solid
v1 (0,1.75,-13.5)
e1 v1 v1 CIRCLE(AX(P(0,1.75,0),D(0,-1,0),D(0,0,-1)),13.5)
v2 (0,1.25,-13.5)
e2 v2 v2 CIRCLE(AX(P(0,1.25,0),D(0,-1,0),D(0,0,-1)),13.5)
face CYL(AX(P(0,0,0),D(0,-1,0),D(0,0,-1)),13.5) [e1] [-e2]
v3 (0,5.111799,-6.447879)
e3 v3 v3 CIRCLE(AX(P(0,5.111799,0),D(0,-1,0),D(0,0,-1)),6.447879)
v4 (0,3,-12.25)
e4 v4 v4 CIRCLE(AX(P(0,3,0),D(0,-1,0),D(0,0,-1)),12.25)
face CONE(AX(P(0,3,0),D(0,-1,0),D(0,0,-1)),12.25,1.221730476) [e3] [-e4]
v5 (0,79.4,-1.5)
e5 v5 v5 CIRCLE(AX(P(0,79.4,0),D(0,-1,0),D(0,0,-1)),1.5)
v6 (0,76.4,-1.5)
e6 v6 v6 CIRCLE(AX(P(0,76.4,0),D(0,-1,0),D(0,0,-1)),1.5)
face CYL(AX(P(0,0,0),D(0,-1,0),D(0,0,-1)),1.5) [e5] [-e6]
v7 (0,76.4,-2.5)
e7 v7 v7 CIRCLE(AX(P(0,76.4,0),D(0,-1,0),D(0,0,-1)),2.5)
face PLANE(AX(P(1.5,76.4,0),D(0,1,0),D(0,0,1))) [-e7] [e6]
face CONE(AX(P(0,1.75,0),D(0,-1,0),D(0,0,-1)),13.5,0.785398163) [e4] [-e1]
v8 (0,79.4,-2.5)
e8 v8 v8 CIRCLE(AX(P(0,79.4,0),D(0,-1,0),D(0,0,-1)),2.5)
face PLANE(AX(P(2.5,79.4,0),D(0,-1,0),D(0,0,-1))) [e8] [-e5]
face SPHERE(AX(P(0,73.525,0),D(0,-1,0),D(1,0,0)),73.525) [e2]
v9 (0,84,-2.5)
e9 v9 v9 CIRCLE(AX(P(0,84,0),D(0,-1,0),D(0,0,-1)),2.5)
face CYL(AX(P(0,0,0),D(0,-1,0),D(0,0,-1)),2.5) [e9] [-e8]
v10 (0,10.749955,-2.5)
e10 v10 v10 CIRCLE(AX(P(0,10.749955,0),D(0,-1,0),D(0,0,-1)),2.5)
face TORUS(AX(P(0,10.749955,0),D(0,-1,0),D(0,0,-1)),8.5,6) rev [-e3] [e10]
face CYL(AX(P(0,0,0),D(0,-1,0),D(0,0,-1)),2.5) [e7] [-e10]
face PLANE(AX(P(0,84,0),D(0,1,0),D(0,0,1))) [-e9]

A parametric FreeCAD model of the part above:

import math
import FreeCAD as App
import Part
import Sketcher

V = App.Vector
Q = App.Units.Quantity

doc = App.newDocument("Part")
body = doc.addObject("PartDesign::Body", "Body")

# Sketch on XY plane
sketch1 = body.newObject("Sketcher::SketchObject", "Sketch")
sketch1.AttachmentSupport = (doc.getObject("XY_Plane"), [""])
sketch1.MapMode = "FlatFace"
sketch1.addGeometry(Part.LineSegment(V(0, 84, 0), V(0, 0, 0)), False)
sketch1.addGeometry(Part.ArcOfCircle(Part.Circle(V(0, 73.525, 0), V(0, 0, 1), 73.525), math.radians(-90), math.radians(-79.419838)), False)
sketch1.addGeometry(Part.LineSegment(V(13.5, 1.25, 0), V(13.5, 1.75, 0)), False)
sketch1.addGeometry(Part.LineSegment(V(13.5, 1.75, 0), V(12.25, 3, 0)), False)
sketch1.addGeometry(Part.LineSegment(V(12.25, 3, 0), V(6.447879, 5.111799, 0)), False)
sketch1.addGeometry(Part.ArcOfCircle(Part.Circle(V(8.5, 10.749955, 0), V(0, 0, 1), 6), math.radians(180), math.radians(250)), False)
sketch1.addGeometry(Part.LineSegment(V(2.5, 10.749955, 0), V(2.5, 76.4, 0)), False)
sketch1.addGeometry(Part.LineSegment(V(2.5, 76.4, 0), V(1.5, 76.4, 0)), False)
sketch1.addGeometry(Part.LineSegment(V(1.5, 76.4, 0), V(1.5, 79.4, 0)), False)
sketch1.addGeometry(Part.LineSegment(V(1.5, 79.4, 0), V(2.5, 79.4, 0)), False)
sketch1.addGeometry(Part.LineSegment(V(2.5, 79.4, 0), V(2.5, 84, 0)), False)
sketch1.addGeometry(Part.LineSegment(V(2.5, 84, 0), V(0, 84, 0)), False)
sketch1.addConstraint(Sketcher.Constraint("Coincident", 0, 2, 1, 1))
sketch1.addConstraint(Sketcher.Constraint("Coincident", 1, 2, 2, 1))
sketch1.addConstraint(Sketcher.Constraint("Coincident", 2, 2, 3, 1))
sketch1.addConstraint(Sketcher.Constraint("Coincident", 3, 2, 4, 1))
sketch1.addConstraint(Sketcher.Constraint("Tangent", 4, 2, 5, 2))
sketch1.addConstraint(Sketcher.Constraint("Tangent", 5, 1, 6, 1))
sketch1.addConstraint(Sketcher.Constraint("Coincident", 6, 2, 7, 1))
sketch1.addConstraint(Sketcher.Constraint("Coincident", 7, 2, 8, 1))
sketch1.addConstraint(Sketcher.Constraint("Coincident", 8, 2, 9, 1))
sketch1.addConstraint(Sketcher.Constraint("Coincident", 9, 2, 10, 1))
sketch1.addConstraint(Sketcher.Constraint("Coincident", 10, 2, 11, 1))
sketch1.addConstraint(Sketcher.Constraint("Coincident", 11, 2, 0, 1))
sketch1.addConstraint(Sketcher.Constraint("Vertical", 0))
sketch1.addConstraint(Sketcher.Constraint("Vertical", 2))
sketch1.addConstraint(Sketcher.Constraint("Vertical", 6))
sketch1.addConstraint(Sketcher.Constraint("Horizontal", 7))
sketch1.addConstraint(Sketcher.Constraint("Vertical", 8))
sketch1.addConstraint(Sketcher.Constraint("Horizontal", 9))
sketch1.addConstraint(Sketcher.Constraint("Vertical", 10))
sketch1.addConstraint(Sketcher.Constraint("Horizontal", 11))
sketch1.addConstraint(Sketcher.Constraint("Coincident", 0, 2, -1, 1))
sketch1.addConstraint(Sketcher.Constraint("PointOnObject", 1, 3, -2))
sketch1.addConstraint(Sketcher.Constraint("Vertical", 6, 2, 9, 2))
sketch1.addConstraint(Sketcher.Constraint("Radius", 5, 6.0))
sketch1.addConstraint(Sketcher.Constraint("DistanceX", 7, 2, 7, 1, 1.0))
sketch1.addConstraint(Sketcher.Constraint("DistanceY", 0, 2, 0, 1, 84.0))
sketch1.addConstraint(Sketcher.Constraint("DistanceY", 8, 1, 8, 2, 3.0))
sketch1.addConstraint(Sketcher.Constraint("Angle", 3, Q("135 deg")))
sketch1.addConstraint(Sketcher.Constraint("Angle", 4, Q("160 deg")))
sketch1.addConstraint(Sketcher.Constraint("DistanceX", 11, 2, 11, 1, 2.5))
sketch1.addConstraint(Sketcher.Constraint("DistanceY", 2, 1, 2, 2, 0.5))
sketch1.addConstraint(Sketcher.Constraint("DistanceY", 10, 1, 10, 2, 4.6))
sketch1.addConstraint(Sketcher.Constraint("DistanceY", -1, 1, 3, 2, 3.0))
sketch1.addConstraint(Sketcher.Constraint("Radius", 1, 73.525))
sketch1.addConstraint(Sketcher.Constraint("DistanceX", 5, 3, 1, 2, 5.0))
revolution = body.newObject("PartDesign::Revolution", "Revolution")
revolution.Profile = sketch1
revolution.ReferenceAxis = (sketch1, ["V_Axis"])
revolution.Angle = 360

doc.recompute()
